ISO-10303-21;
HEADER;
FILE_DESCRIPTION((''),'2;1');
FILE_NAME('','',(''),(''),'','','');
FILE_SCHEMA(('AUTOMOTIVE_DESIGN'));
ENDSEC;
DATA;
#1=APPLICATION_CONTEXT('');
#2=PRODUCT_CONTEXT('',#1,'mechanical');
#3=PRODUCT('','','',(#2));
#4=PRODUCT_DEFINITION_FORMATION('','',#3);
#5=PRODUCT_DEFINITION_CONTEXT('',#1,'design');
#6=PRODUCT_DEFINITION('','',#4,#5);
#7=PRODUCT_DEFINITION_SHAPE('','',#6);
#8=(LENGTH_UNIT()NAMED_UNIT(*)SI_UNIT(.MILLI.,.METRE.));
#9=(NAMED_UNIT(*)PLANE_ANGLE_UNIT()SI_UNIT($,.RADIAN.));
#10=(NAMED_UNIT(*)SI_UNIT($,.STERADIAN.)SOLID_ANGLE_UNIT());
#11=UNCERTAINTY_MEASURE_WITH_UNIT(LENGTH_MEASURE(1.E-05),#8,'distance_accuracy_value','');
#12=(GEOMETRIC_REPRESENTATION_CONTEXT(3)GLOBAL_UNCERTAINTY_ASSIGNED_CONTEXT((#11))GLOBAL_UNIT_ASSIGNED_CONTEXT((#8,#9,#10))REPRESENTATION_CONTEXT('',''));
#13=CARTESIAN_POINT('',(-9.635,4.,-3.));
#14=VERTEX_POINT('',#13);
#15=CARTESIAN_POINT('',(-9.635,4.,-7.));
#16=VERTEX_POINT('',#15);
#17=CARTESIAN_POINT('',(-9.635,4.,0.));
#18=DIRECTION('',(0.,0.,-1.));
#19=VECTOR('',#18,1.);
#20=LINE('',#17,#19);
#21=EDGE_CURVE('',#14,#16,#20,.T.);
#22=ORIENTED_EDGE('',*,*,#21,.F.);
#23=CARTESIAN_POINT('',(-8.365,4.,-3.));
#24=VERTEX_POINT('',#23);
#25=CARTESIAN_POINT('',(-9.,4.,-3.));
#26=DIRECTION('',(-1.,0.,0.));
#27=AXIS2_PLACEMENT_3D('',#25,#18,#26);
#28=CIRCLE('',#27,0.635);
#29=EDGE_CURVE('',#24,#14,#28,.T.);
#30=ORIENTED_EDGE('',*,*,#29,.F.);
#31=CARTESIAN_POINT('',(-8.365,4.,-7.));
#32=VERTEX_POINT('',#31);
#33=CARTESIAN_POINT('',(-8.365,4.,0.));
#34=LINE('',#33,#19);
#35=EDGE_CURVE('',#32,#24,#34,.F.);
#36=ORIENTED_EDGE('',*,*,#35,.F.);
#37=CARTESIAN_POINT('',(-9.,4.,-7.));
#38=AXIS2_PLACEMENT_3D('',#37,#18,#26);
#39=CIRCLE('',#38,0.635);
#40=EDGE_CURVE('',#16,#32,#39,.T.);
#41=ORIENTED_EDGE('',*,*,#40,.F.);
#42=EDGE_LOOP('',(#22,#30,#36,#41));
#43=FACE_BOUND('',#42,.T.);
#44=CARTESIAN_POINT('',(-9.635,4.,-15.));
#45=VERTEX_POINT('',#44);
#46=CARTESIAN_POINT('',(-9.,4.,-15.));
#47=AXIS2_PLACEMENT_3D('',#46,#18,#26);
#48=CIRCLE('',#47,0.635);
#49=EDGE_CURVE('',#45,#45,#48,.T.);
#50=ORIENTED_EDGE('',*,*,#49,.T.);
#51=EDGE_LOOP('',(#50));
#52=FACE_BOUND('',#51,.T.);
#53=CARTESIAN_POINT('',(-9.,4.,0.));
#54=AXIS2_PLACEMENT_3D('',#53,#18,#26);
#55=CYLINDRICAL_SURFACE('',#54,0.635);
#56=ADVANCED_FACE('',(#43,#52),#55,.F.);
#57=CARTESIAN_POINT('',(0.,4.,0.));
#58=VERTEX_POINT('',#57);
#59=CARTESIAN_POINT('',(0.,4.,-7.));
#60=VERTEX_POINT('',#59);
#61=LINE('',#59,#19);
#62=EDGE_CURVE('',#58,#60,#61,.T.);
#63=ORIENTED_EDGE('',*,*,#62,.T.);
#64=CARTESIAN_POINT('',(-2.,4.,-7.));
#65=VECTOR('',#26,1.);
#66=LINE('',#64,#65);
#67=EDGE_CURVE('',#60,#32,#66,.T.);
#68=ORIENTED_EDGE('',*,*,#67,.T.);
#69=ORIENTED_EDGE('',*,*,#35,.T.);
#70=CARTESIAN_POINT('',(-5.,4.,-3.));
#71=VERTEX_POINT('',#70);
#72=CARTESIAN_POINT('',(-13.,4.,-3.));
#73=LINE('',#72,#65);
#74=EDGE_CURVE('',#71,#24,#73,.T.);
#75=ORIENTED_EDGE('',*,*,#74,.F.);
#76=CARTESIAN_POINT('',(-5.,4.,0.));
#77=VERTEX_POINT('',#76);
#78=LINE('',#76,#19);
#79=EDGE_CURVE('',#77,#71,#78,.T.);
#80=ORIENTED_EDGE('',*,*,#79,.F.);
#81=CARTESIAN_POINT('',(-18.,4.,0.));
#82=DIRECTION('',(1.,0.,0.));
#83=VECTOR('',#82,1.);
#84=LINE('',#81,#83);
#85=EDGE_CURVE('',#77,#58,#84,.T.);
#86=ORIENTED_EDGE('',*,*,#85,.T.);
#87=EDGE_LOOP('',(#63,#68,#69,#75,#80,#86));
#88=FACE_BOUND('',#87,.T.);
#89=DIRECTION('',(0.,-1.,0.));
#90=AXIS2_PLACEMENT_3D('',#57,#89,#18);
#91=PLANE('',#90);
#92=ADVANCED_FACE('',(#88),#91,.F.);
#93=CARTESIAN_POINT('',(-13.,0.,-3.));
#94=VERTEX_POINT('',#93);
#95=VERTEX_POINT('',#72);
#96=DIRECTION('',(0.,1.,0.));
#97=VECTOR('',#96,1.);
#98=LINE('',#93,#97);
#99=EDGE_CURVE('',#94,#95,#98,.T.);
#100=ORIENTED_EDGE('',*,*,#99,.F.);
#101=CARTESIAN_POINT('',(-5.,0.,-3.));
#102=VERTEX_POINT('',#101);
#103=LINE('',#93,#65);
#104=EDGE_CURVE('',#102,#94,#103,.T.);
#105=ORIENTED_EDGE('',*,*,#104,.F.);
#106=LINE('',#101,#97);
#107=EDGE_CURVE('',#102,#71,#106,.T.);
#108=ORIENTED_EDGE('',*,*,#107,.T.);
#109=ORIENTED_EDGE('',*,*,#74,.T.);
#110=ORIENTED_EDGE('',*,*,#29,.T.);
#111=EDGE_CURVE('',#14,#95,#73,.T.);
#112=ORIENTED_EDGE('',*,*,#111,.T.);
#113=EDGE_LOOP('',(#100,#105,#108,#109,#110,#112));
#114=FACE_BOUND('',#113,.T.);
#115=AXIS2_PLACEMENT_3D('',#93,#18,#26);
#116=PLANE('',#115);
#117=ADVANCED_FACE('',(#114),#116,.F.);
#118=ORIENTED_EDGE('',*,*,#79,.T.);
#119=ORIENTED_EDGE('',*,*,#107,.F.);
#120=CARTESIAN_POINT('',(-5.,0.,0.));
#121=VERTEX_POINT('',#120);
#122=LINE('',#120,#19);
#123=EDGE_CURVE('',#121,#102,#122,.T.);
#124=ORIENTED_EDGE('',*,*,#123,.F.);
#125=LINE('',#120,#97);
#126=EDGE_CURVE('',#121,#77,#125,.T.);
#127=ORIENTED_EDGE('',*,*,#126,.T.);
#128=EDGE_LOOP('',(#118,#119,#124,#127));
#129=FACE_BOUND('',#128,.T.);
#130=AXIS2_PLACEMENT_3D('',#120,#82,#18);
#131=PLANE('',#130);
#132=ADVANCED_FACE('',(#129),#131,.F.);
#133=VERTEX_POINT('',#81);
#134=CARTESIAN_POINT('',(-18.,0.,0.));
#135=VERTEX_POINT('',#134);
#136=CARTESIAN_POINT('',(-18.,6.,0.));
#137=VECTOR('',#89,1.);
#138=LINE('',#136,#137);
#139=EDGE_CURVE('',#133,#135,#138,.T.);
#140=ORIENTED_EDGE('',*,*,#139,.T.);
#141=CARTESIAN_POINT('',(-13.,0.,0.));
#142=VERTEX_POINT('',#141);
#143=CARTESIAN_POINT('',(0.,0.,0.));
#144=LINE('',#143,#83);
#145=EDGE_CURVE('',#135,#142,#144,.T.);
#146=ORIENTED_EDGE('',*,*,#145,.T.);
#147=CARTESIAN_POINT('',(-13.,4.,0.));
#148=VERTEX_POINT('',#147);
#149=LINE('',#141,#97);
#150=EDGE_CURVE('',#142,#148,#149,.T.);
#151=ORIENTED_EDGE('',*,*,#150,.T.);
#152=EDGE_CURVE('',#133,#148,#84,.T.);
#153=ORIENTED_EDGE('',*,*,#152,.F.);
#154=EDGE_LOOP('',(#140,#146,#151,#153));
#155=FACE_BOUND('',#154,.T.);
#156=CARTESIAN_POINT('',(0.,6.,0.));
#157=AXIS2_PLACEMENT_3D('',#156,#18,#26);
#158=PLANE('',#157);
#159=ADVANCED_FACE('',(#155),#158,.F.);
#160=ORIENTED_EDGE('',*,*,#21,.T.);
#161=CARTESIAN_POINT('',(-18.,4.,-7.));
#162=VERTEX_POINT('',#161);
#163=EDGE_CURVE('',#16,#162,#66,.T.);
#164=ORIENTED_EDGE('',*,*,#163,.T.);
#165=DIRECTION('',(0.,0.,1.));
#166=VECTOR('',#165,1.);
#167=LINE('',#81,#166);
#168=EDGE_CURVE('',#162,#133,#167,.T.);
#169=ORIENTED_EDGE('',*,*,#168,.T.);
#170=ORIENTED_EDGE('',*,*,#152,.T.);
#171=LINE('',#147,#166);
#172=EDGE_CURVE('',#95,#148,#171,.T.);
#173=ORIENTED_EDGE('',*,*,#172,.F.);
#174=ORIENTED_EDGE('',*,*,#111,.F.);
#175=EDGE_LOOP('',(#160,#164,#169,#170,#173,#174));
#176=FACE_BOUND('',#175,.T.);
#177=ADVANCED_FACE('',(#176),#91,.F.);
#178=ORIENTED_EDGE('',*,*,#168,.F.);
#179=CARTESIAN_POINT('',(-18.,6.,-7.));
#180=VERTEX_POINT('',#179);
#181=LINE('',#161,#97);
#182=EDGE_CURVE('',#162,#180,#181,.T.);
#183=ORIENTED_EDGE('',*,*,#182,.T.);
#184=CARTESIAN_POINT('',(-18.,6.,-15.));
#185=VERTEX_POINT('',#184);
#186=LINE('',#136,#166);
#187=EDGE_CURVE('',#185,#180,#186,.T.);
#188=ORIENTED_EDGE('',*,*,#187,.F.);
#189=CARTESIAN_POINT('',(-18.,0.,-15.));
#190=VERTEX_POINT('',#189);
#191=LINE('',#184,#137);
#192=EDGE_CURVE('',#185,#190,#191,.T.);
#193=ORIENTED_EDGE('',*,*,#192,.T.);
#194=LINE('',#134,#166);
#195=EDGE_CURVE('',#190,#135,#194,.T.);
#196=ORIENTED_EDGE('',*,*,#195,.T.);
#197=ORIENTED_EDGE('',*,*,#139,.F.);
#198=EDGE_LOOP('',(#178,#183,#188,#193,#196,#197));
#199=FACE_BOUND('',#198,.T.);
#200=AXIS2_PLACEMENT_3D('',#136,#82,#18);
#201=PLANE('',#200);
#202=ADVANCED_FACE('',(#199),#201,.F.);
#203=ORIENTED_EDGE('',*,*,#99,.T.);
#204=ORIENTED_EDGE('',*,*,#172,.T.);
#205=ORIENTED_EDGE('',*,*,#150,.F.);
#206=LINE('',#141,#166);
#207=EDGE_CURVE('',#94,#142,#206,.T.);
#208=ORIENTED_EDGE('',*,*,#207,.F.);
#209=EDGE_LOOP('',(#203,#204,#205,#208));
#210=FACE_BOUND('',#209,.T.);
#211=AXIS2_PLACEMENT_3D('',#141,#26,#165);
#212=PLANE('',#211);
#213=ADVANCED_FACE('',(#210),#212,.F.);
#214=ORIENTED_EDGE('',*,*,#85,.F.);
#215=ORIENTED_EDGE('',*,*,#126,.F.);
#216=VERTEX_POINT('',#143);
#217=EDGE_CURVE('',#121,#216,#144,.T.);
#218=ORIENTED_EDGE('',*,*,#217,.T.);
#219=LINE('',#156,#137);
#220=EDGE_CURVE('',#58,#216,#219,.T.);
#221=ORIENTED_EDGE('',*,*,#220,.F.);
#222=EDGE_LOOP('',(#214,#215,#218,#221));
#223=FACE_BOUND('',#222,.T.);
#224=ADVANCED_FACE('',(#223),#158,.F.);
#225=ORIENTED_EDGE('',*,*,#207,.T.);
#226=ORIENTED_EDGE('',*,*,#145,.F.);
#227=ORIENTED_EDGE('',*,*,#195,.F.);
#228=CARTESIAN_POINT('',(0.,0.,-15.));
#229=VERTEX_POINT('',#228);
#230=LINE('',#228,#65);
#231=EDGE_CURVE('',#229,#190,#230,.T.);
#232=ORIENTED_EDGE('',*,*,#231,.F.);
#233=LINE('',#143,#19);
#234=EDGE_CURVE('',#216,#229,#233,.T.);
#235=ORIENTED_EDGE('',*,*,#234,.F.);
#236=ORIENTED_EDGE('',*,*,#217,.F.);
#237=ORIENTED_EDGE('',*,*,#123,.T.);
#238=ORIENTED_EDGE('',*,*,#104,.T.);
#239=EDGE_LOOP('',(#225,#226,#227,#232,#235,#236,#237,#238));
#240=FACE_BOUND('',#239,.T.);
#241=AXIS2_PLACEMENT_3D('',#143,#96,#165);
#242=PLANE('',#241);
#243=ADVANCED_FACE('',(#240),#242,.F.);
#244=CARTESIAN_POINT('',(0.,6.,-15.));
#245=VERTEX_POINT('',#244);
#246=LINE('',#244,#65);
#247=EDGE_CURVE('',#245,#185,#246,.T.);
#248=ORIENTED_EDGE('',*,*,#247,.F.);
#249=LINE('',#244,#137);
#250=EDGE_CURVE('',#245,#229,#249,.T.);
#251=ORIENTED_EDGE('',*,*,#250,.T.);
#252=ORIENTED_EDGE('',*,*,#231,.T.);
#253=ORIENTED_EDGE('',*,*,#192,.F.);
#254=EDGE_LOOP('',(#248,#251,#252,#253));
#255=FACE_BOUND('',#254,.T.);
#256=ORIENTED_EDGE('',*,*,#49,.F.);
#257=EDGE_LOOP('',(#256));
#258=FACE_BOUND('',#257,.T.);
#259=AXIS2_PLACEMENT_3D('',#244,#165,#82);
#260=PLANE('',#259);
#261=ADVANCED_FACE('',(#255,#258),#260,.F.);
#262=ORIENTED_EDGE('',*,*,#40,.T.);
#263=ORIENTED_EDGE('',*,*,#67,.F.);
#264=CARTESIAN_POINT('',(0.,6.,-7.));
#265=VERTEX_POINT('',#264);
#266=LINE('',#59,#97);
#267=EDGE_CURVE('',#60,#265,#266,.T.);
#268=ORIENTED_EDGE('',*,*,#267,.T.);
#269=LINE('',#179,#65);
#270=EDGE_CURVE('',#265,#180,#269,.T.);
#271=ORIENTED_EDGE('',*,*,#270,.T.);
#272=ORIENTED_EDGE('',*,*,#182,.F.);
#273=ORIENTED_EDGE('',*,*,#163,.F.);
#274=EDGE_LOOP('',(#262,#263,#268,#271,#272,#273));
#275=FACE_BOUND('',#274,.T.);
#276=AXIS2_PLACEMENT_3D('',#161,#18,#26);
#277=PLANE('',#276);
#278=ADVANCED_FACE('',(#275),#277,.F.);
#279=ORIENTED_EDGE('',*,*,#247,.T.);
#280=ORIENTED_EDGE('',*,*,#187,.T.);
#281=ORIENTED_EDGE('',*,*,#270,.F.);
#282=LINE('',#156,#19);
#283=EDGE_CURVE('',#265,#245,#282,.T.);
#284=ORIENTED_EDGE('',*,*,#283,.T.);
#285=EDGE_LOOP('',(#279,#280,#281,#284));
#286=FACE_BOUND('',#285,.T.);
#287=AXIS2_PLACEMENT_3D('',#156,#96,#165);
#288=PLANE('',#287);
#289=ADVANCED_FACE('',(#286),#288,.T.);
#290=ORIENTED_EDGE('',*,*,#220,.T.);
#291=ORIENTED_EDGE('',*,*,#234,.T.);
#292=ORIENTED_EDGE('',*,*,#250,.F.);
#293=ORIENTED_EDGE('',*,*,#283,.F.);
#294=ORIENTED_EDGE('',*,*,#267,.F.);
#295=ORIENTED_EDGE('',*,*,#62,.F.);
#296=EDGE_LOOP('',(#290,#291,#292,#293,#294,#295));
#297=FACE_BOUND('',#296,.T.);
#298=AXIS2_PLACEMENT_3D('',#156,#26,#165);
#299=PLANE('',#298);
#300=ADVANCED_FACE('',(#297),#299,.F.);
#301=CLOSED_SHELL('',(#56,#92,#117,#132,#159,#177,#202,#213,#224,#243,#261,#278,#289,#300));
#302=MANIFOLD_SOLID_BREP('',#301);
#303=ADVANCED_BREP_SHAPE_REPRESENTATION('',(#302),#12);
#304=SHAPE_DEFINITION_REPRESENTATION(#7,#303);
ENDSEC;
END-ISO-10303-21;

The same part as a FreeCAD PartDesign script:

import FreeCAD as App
import Part
import Sketcher
Q = App.Units.Quantity


def add_polygon(sketch, points):
    """Adds a closed chain of lines whose ends are joined by coincident constraints."""
    first, n = sketch.GeometryCount, len(points)
    for a, b in zip(points, points[1:] + points[:1]):
        sketch.addGeometry(Part.LineSegment(App.Vector(*a, 0), App.Vector(*b, 0)), False)
    for i in range(n):
        sketch.addConstraint(Sketcher.Constraint("Coincident", first + i, 2, first + (i + 1) % n, 1))

doc = App.newDocument("Part")
body = doc.addObject("PartDesign::Body", "Body")

sketch1 = doc.addObject("Sketcher::SketchObject", "Sketch")
body.addObject(sketch1)
sketch1.AttachmentSupport = (doc.XZ_Plane, [""])
sketch1.MapMode = "FlatFace"
add_polygon(sketch1, [(-18, -15), (-18, 0), (0, 0), (0, -15)])
sketch1.addConstraint(Sketcher.Constraint("Vertical", 0))
sketch1.addConstraint(Sketcher.Constraint("Horizontal", 1))
sketch1.addConstraint(Sketcher.Constraint("Vertical", 2))
sketch1.addConstraint(Sketcher.Constraint("Horizontal", 3))
sketch1.addConstraint(Sketcher.Constraint("Coincident", 1, 2, -1, 1))
sketch1.addConstraint(Sketcher.Constraint("DistanceX", 1, 1, 1, 2, Q("18 mm")))
sketch1.addConstraint(Sketcher.Constraint("DistanceY", 0, 1, 0, 2, Q("15 mm")))
pad1 = doc.addObject("PartDesign::Pad", "Pad")
body.addObject(pad1)
pad1.Profile = sketch1
pad1.Length = 6
pad1.Reversed = True

sketch2 = doc.addObject("Sketcher::SketchObject", "Sketch001")
body.addObject(sketch2)
sketch2.AttachmentSupport = (doc.XZ_Plane, [""])
sketch2.MapMode = "FlatFace"
sketch2.AttachmentOffset = App.Placement(App.Vector(0, 0, -6), App.Rotation())
add_polygon(sketch2, [(0, 0), (0, -7), (-18, -7), (-18, 0)])
sketch2.addConstraint(Sketcher.Constraint("Vertical", 0))
sketch2.addConstraint(Sketcher.Constraint("Horizontal", 1))
sketch2.addConstraint(Sketcher.Constraint("Vertical", 2))
sketch2.addConstraint(Sketcher.Constraint("Horizontal", 3))
sketch2.addConstraint(Sketcher.Constraint("Coincident", 3, 2, -1, 1))
sketch2.addConstraint(Sketcher.Constraint("DistanceX", 1, 2, 1, 1, Q("18 mm")))
sketch2.addConstraint(Sketcher.Constraint("DistanceY", 0, 2, 0, 1, Q("7 mm")))
pocket1 = doc.addObject("PartDesign::Pocket", "Pocket")
body.addObject(pocket1)
pocket1.Profile = sketch2
pocket1.Length = 2
pocket1.Reversed = True

sketch3 = doc.addObject("Sketcher::SketchObject", "Sketch002")
body.addObject(sketch3)
sketch3.AttachmentSupport = (doc.XZ_Plane, [""])
sketch3.MapMode = "FlatFace"
sketch3.AttachmentOffset = App.Placement(App.Vector(0, 0, -4), App.Rotation())
add_polygon(sketch3, [(-13, -3), (-13, 0), (-5, 0), (-5, -3)])
sketch3.addConstraint(Sketcher.Constraint("Vertical", 0))
sketch3.addConstraint(Sketcher.Constraint("Horizontal", 1))
sketch3.addConstraint(Sketcher.Constraint("Vertical", 2))
sketch3.addConstraint(Sketcher.Constraint("Horizontal", 3))
sketch3.addConstraint(Sketcher.Constraint("PointOnObject", 0, 2, -1))
sketch3.addConstraint(Sketcher.Constraint("DistanceX", 1, 1, 1, 2, Q("8 mm")))
sketch3.addConstraint(Sketcher.Constraint("DistanceY", 0, 1, 0, 2, Q("3 mm")))
sketch3.addConstraint(Sketcher.Constraint("DistanceX", 0, 2, -1, 1, Q("13 mm")))
pocket2 = doc.addObject("PartDesign::Pocket", "Pocket001")
body.addObject(pocket2)
pocket2.Profile = sketch3
pocket2.Type = "ThroughAll"
pocket2.Reversed = True

sketch4 = doc.addObject("Sketcher::SketchObject", "Sketch003")
body.addObject(sketch4)
sketch4.AttachmentSupport = (doc.XY_Plane, [""])
sketch4.MapMode = "FlatFace"
sketch4.AttachmentOffset = App.Placement(App.Vector(0, 0, -15), App.Rotation())
sketch4.addGeometry(Part.Circle(App.Vector(-9, 4, 0), App.Vector(0, 0, 1), 0.6), False)
sketch4.addConstraint(Sketcher.Constraint("Diameter", 0, Q("1.27 mm")))
sketch4.addConstraint(Sketcher.Constraint("DistanceX", 0, 3, -1, 1, Q("9 mm")))
sketch4.addConstraint(Sketcher.Constraint("DistanceY", -1, 1, 0, 3, Q("4 mm")))
pocket3 = doc.addObject("PartDesign::Pocket", "Pocket002")
body.addObject(pocket3)
pocket3.Profile = sketch4
pocket3.Type = "ThroughAll"
pocket3.Reversed = True

doc.recompute()
